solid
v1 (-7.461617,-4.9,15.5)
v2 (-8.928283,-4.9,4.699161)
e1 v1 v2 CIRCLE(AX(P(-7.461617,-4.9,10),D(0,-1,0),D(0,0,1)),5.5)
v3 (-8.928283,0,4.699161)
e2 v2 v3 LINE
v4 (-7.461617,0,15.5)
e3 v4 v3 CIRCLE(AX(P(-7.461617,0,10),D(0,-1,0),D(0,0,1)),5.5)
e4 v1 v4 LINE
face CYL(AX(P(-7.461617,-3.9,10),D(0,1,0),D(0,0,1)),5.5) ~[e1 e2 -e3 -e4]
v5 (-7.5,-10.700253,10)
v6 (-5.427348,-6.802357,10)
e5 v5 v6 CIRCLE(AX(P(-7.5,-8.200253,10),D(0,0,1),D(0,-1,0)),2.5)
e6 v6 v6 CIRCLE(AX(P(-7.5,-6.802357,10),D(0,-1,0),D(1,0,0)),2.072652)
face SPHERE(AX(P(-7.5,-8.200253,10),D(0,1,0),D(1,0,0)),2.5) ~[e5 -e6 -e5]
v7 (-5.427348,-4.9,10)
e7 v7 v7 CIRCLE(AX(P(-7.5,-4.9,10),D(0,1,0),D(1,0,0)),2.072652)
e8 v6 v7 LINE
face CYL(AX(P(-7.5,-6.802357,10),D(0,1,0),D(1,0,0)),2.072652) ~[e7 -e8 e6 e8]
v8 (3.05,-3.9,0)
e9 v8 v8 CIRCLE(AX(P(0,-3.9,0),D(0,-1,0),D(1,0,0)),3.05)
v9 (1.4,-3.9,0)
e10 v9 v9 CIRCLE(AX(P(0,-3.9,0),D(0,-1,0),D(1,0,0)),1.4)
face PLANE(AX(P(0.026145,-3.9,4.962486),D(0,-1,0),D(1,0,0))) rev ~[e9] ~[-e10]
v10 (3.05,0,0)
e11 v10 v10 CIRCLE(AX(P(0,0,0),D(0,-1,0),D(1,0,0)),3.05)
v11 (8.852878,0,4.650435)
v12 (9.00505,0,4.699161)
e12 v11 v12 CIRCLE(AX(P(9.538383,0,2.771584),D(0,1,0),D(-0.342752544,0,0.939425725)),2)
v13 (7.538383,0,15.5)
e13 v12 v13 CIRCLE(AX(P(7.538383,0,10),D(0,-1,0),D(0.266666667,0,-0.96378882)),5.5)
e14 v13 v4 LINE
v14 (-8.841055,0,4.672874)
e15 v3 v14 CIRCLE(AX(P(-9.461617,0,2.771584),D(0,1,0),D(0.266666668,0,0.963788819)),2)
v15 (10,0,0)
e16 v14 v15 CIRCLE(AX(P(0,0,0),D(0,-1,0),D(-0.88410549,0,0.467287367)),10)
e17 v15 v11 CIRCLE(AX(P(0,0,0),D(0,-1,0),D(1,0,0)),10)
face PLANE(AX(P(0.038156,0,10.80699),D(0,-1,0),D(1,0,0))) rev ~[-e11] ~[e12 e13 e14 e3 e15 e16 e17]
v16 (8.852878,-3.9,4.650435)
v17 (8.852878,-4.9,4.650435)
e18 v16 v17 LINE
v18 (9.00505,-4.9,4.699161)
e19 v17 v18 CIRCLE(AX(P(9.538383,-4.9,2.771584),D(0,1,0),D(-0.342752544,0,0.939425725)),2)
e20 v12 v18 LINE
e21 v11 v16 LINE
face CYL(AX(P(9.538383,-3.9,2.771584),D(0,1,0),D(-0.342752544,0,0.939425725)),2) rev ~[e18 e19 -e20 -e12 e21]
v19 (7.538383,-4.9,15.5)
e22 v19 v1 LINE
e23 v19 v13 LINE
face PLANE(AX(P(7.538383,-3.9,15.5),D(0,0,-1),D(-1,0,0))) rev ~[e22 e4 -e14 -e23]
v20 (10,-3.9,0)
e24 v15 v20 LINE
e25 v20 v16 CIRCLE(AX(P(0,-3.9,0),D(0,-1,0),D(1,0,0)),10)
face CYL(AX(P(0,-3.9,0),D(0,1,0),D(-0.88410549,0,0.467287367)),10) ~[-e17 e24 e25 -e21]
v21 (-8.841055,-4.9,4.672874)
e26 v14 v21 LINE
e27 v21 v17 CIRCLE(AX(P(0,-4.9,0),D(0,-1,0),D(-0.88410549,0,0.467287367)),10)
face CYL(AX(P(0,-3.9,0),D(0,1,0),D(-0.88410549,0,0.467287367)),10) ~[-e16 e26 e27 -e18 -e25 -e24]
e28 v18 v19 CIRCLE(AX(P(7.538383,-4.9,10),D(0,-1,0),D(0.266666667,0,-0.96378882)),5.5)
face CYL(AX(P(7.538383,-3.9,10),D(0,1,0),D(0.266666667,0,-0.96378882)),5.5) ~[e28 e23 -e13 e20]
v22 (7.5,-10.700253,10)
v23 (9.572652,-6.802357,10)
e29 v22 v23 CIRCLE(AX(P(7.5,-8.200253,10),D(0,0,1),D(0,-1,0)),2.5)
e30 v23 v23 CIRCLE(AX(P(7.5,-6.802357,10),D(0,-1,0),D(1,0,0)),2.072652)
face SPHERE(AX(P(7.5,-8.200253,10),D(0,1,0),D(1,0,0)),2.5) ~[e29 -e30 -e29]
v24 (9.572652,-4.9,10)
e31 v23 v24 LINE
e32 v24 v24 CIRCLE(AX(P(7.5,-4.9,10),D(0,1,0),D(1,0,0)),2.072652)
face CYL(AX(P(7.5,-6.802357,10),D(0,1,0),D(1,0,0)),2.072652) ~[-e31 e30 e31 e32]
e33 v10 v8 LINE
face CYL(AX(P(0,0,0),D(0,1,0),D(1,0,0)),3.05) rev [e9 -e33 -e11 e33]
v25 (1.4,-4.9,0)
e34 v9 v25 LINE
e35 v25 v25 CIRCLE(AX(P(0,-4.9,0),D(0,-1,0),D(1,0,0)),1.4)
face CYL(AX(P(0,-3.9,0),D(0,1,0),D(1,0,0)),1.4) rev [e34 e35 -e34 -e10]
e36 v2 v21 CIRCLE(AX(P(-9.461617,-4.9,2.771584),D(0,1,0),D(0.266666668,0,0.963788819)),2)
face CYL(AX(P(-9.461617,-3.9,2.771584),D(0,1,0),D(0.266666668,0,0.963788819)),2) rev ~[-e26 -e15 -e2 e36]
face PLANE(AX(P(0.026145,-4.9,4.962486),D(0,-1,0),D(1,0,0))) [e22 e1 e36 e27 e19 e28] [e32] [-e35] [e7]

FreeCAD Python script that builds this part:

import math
import FreeCAD as App
import Part
import Sketcher
Q = App.Units.Quantity

doc = App.newDocument("Part")
params = doc.addObject("Spreadsheet::Sheet", "Params")
for row, (alias, value) in enumerate([
    ("sketch1_radius", "10 mm"),
    ("sketch1_radius2", "2 mm"),
    ("sketch1_diameter", "6.1 mm"),
    ("sketch1_radius3", "5.5 mm"),
    ("sketch1_width", "15 mm"),
    ("pad1_length", "3.9 mm"),
    ("sketch2_radius", "2 mm"),
    ("sketch2_radius2", "10 mm"),
    ("sketch2_diameter", "2.8 mm"),
    ("sketch2_radius3", "5.5 mm"),
    ("sketch2_width", "15 mm"),
    ("pad2_length", "1 mm"),
    ("sketch3_radius", "2.5 mm"),
    ("revolution_angle", "360 deg"),
    ("sketch4_radius", "2.5 mm"),
    ("revolution2_angle", "360 deg"),
], start=1):
    params.set(f"A{row}", alias)
    params.set(f"B{row}", "=" + value)
    params.setAlias(f"B{row}", alias)

body = doc.addObject("PartDesign::Body", "Body")

# Sketch on XZ plane
sketch1 = body.newObject("Sketcher::SketchObject", "Sketch")
sketch1.AttachmentSupport = (doc.getObject("XZ_Plane"), [""])
sketch1.MapMode = "FlatFace"
sketch1.addGeometry([
    Part.ArcOfCircle(Part.Circle(App.Vector(0, 0, 0), App.Vector(0, 0, 1), 10), math.radians(152), math.radians(360)),  # 0
    Part.ArcOfCircle(Part.Circle(App.Vector(0, 0, 0), App.Vector(0, 0, 1), 10), math.radians(0), math.radians(28)),  # 1
    Part.ArcOfCircle(Part.Circle(App.Vector(9.54, 2.77, 0), App.Vector(0, 0, 1), 2), math.radians(105.47), math.radians(110.04)),  # 2
    Part.ArcOfCircle(Part.Circle(App.Vector(7.54, 10, 0), App.Vector(0, 0, 1), 5.5), math.radians(-75), math.radians(90)),  # 3
    Part.LineSegment(App.Vector(7.54, 15.5, 0), App.Vector(-7.46, 15.5, 0)),  # 4
    Part.ArcOfCircle(Part.Circle(App.Vector(-7.46, 10, 0), App.Vector(0, 0, 1), 5.5), math.radians(90), math.radians(255)),  # 5
    Part.ArcOfCircle(Part.Circle(App.Vector(-9.46, 2.77, 0), App.Vector(0, 0, 1), 2), math.radians(71.92), math.radians(74.53)),  # 6
    Part.Circle(App.Vector(0, 0, 0), App.Vector(0, 0, 1), 3.05),  # 7
], False)
sketch1.addConstraint([
    Sketcher.Constraint("Tangent", 0, 2, 1, 1),
    Sketcher.Constraint("Coincident", 1, 2, 2, 2),
    Sketcher.Constraint("Tangent", 2, 1, 3, 1),
    Sketcher.Constraint("Tangent", 3, 2, 4, 1),
    Sketcher.Constraint("Tangent", 4, 2, 5, 1),
    Sketcher.Constraint("Tangent", 5, 2, 6, 2),
    Sketcher.Constraint("Coincident", 6, 1, 0, 1),
    Sketcher.Constraint("Horizontal", 4),
    Sketcher.Constraint("Coincident", 0, 3, -1, 1),
    Sketcher.Constraint("Coincident", 7, 3, -1, 1),
    Sketcher.Constraint("Equal", 0, 1),
    Sketcher.Constraint("Equal", 3, 5),
    Sketcher.Constraint("Equal", 2, 6),
    Sketcher.Constraint("PointOnObject", 0, 2, -1),
    Sketcher.Constraint("Horizontal", 2, 3, 6, 3),
    Sketcher.Constraint("Radius", 0, Q("10 mm")),
    Sketcher.Constraint("Radius", 2, Q("2 mm")),
    Sketcher.Constraint("Diameter", 7, Q("6.1 mm")),
    Sketcher.Constraint("Radius", 3, Q("5.5 mm")),
    Sketcher.Constraint("DistanceX", 4, 2, 4, 1, Q("15 mm")),
    Sketcher.Constraint("DistanceY", -1, 1, 3, 3, Q("10 mm")),
    Sketcher.Constraint("DistanceX", 3, 3, 2, 3, Q("2 mm")),
    Sketcher.Constraint("DistanceX", -1, 1, 1, 2, Q("8.852878 mm")),
])
sketch1.setExpression("Constraints[15]", "Params.sketch1_radius")
sketch1.setExpression("Constraints[16]", "Params.sketch1_radius2")
sketch1.setExpression("Constraints[17]", "Params.sketch1_diameter")
sketch1.setExpression("Constraints[18]", "Params.sketch1_radius3")
sketch1.setExpression("Constraints[19]", "Params.sketch1_width")
pad1 = body.newObject("PartDesign::Pad", "Pad")
pad1.Profile = sketch1
pad1.setExpression("Length", "Params.pad1_length")

# Sketch on XZ plane
sketch2 = body.newObject("Sketcher::SketchObject", "Sketch001")
sketch2.AttachmentSupport = (doc.getObject("XZ_Plane"), [""])
sketch2.MapMode = "FlatFace"
sketch2.AttachmentOffset = App.Placement(App.Vector(0, 0, 3.9), App.Rotation())
sketch2.addGeometry([
    Part.ArcOfCircle(Part.Circle(App.Vector(-9.46, 2.77, 0), App.Vector(0, 0, 1), 2), math.radians(71.92), math.radians(74.53)),  # 0
    Part.ArcOfCircle(Part.Circle(App.Vector(0, 0, 0), App.Vector(0, 0, 1), 10), math.radians(152), math.radians(388)),  # 1
    Part.ArcOfCircle(Part.Circle(App.Vector(9.54, 2.77, 0), App.Vector(0, 0, 1), 2), math.radians(105.47), math.radians(110.04)),  # 2
    Part.ArcOfCircle(Part.Circle(App.Vector(7.54, 10, 0), App.Vector(0, 0, 1), 5.5), math.radians(-75), math.radians(90)),  # 3
    Part.LineSegment(App.Vector(7.54, 15.5, 0), App.Vector(-7.46, 15.5, 0)),  # 4
    Part.ArcOfCircle(Part.Circle(App.Vector(-7.46, 10, 0), App.Vector(0, 0, 1), 5.5), math.radians(90), math.radians(255)),  # 5
    Part.Circle(App.Vector(0, 0, 0), App.Vector(0, 0, 1), 1.4),  # 6
], False)
sketch2.addConstraint([
    Sketcher.Constraint("Coincident", 0, 1, 1, 1),
    Sketcher.Constraint("Coincident", 1, 2, 2, 2),
    Sketcher.Constraint("Tangent", 2, 1, 3, 1),
    Sketcher.Constraint("Tangent", 3, 2, 4, 1),
    Sketcher.Constraint("Tangent", 4, 2, 5, 1),
    Sketcher.Constraint("Tangent", 5, 2, 0, 2),
    Sketcher.Constraint("Horizontal", 4),
    Sketcher.Constraint("Coincident", 1, 3, -1, 1),
    Sketcher.Constraint("Coincident", 6, 3, -1, 1),
    Sketcher.Constraint("Equal", 0, 2),
    Sketcher.Constraint("Equal", 3, 5),
    Sketcher.Constraint("Horizontal", 0, 3, 2, 3),
    Sketcher.Constraint("Radius", 0, Q("2 mm")),
    Sketcher.Constraint("Radius", 1, Q("10 mm")),
    Sketcher.Constraint("Diameter", 6, Q("2.8 mm")),
    Sketcher.Constraint("Radius", 3, Q("5.5 mm")),
    Sketcher.Constraint("DistanceX", 4, 2, 4, 1, Q("15 mm")),
    Sketcher.Constraint("DistanceY", -1, 1, 3, 3, Q("10 mm")),
    Sketcher.Constraint("DistanceX", 0, 3, 2, 3, Q("19 mm")),
    Sketcher.Constraint("DistanceX", -1, 1, 1, 2, Q("8.852878 mm")),
])
sketch2.setExpression("Constraints[12]", "Params.sketch2_radius")
sketch2.setExpression("Constraints[13]", "Params.sketch2_radius2")
sketch2.setExpression("Constraints[14]", "Params.sketch2_diameter")
sketch2.setExpression("Constraints[15]", "Params.sketch2_radius3")
sketch2.setExpression("Constraints[16]", "Params.sketch2_width")
pad2 = body.newObject("PartDesign::Pad", "Pad001")
pad2.Profile = sketch2
pad2.setExpression("Length", "Params.pad2_length")

# Sketch on XY plane
sketch3 = body.newObject("Sketcher::SketchObject", "Sketch002")
sketch3.AttachmentSupport = (doc.getObject("XY_Plane"), [""])
sketch3.MapMode = "FlatFace"
sketch3.AttachmentOffset = App.Placement(App.Vector(0, 0, 10), App.Rotation())
sketch3.addGeometry([
    Part.ArcOfCircle(Part.Circle(App.Vector(-7.5, -8.2, 0), App.Vector(0, 0, 1), 2.5), math.radians(-90), math.radians(34)),
    Part.LineSegment(App.Vector(-5.4, -6.8, 0), App.Vector(-5.4, -4.8, 0)),
    Part.LineSegment(App.Vector(-5.4, -4.8, 0), App.Vector(-7.5, -4.8, 0)),
    Part.LineSegment(App.Vector(-7.5, -4.8, 0), App.Vector(-7.5, -10.7, 0)),
], False)
sketch3.addGeometry(Part.LineSegment(App.Vector(-7.5, -4.8, 0), App.Vector(-7.5, -10.7, 0)), True)  # axis
sketch3.addConstraint([
    Sketcher.Constraint("Coincident", 0, 2, 1, 1),
    Sketcher.Constraint("Coincident", 1, 2, 2, 1),
    Sketcher.Constraint("Coincident", 2, 2, 3, 1),
    Sketcher.Constraint("Coincident", 3, 2, 0, 1),
    Sketcher.Constraint("Vertical", 1),
    Sketcher.Constraint("Horizontal", 2),
    Sketcher.Constraint("Vertical", 3),
    Sketcher.Constraint("Vertical", 4),
    Sketcher.Constraint("Coincident", 4, 1, 2, 2),
    Sketcher.Constraint("Vertical", 0, 3, 2, 2),
    Sketcher.Constraint("Equal", 3, 4),
    Sketcher.Constraint("Radius", 0, Q("2.5 mm")),
    Sketcher.Constraint("DistanceX", 0, 3, -1, 1, Q("7.5 mm")),
    Sketcher.Constraint("DistanceX", 2, 2, 2, 1, Q("2.072652 mm")),
    Sketcher.Constraint("DistanceY", 3, 2, 3, 1, Q("5.898811 mm")),
    Sketcher.Constraint("DistanceY", 0, 3, -1, 1, Q("8.200253 mm")),
])
sketch3.setExpression("Constraints[11]", "Params.sketch3_radius")
revolution = body.newObject("PartDesign::Revolution", "Revolution")
revolution.Profile = sketch3
revolution.ReferenceAxis = (sketch3, ["Axis0"])
revolution.setExpression("Angle", "Params.revolution_angle")

# Sketch on XY plane
sketch4 = body.newObject("Sketcher::SketchObject", "Sketch003")
sketch4.AttachmentSupport = (doc.getObject("XY_Plane"), [""])
sketch4.MapMode = "FlatFace"
sketch4.AttachmentOffset = App.Placement(App.Vector(0, 0, 10), App.Rotation())
sketch4.addGeometry([
    Part.LineSegment(App.Vector(9.6, -6.8, 0), App.Vector(9.6, -4.8, 0)),
    Part.LineSegment(App.Vector(9.6, -4.8, 0), App.Vector(7.5, -4.8, 0)),
    Part.LineSegment(App.Vector(7.5, -4.8, 0), App.Vector(7.5, -10.7, 0)),
    Part.ArcOfCircle(Part.Circle(App.Vector(7.5, -8.2, 0), App.Vector(0, 0, 1), 2.5), math.radians(-90), math.radians(34)),
], False)
sketch4.addGeometry(Part.LineSegment(App.Vector(7.5, -4.8, 0), App.Vector(7.5, -10.7, 0)), True)  # axis
sketch4.addConstraint([
    Sketcher.Constraint("Coincident", 0, 2, 1, 1),
    Sketcher.Constraint("Coincident", 1, 2, 2, 1),
    Sketcher.Constraint("Coincident", 2, 2, 3, 1),
    Sketcher.Constraint("Coincident", 3, 2, 0, 1),
    Sketcher.Constraint("Vertical", 0),
    Sketcher.Constraint("Horizontal", 1),
    Sketcher.Constraint("Vertical", 2),
    Sketcher.Constraint("Vertical", 4),
    Sketcher.Constraint("Coincident", 4, 1, 1, 2),
    Sketcher.Constraint("Vertical", 3, 3, 1, 2),
    Sketcher.Constraint("Equal", 2, 4),
    Sketcher.Constraint("Radius", 3, Q("2.5 mm")),
    Sketcher.Constraint("DistanceX", -1, 1, 3, 3, Q("7.5 mm")),
    Sketcher.Constraint("DistanceX", 1, 2, 1, 1, Q("2.072652 mm")),
    Sketcher.Constraint("DistanceY", 2, 2, 2, 1, Q("5.915672 mm")),
    Sketcher.Constraint("DistanceY", 0, 2, -1, 1, Q("4.784581 mm")),
])
sketch4.setExpression("Constraints[11]", "Params.sketch4_radius")
revolution2 = body.newObject("PartDesign::Revolution", "Revolution001")
revolution2.Profile = sketch4
revolution2.ReferenceAxis = (sketch4, ["Axis0"])
revolution2.setExpression("Angle", "Params.revolution2_angle")

doc.recompute()
